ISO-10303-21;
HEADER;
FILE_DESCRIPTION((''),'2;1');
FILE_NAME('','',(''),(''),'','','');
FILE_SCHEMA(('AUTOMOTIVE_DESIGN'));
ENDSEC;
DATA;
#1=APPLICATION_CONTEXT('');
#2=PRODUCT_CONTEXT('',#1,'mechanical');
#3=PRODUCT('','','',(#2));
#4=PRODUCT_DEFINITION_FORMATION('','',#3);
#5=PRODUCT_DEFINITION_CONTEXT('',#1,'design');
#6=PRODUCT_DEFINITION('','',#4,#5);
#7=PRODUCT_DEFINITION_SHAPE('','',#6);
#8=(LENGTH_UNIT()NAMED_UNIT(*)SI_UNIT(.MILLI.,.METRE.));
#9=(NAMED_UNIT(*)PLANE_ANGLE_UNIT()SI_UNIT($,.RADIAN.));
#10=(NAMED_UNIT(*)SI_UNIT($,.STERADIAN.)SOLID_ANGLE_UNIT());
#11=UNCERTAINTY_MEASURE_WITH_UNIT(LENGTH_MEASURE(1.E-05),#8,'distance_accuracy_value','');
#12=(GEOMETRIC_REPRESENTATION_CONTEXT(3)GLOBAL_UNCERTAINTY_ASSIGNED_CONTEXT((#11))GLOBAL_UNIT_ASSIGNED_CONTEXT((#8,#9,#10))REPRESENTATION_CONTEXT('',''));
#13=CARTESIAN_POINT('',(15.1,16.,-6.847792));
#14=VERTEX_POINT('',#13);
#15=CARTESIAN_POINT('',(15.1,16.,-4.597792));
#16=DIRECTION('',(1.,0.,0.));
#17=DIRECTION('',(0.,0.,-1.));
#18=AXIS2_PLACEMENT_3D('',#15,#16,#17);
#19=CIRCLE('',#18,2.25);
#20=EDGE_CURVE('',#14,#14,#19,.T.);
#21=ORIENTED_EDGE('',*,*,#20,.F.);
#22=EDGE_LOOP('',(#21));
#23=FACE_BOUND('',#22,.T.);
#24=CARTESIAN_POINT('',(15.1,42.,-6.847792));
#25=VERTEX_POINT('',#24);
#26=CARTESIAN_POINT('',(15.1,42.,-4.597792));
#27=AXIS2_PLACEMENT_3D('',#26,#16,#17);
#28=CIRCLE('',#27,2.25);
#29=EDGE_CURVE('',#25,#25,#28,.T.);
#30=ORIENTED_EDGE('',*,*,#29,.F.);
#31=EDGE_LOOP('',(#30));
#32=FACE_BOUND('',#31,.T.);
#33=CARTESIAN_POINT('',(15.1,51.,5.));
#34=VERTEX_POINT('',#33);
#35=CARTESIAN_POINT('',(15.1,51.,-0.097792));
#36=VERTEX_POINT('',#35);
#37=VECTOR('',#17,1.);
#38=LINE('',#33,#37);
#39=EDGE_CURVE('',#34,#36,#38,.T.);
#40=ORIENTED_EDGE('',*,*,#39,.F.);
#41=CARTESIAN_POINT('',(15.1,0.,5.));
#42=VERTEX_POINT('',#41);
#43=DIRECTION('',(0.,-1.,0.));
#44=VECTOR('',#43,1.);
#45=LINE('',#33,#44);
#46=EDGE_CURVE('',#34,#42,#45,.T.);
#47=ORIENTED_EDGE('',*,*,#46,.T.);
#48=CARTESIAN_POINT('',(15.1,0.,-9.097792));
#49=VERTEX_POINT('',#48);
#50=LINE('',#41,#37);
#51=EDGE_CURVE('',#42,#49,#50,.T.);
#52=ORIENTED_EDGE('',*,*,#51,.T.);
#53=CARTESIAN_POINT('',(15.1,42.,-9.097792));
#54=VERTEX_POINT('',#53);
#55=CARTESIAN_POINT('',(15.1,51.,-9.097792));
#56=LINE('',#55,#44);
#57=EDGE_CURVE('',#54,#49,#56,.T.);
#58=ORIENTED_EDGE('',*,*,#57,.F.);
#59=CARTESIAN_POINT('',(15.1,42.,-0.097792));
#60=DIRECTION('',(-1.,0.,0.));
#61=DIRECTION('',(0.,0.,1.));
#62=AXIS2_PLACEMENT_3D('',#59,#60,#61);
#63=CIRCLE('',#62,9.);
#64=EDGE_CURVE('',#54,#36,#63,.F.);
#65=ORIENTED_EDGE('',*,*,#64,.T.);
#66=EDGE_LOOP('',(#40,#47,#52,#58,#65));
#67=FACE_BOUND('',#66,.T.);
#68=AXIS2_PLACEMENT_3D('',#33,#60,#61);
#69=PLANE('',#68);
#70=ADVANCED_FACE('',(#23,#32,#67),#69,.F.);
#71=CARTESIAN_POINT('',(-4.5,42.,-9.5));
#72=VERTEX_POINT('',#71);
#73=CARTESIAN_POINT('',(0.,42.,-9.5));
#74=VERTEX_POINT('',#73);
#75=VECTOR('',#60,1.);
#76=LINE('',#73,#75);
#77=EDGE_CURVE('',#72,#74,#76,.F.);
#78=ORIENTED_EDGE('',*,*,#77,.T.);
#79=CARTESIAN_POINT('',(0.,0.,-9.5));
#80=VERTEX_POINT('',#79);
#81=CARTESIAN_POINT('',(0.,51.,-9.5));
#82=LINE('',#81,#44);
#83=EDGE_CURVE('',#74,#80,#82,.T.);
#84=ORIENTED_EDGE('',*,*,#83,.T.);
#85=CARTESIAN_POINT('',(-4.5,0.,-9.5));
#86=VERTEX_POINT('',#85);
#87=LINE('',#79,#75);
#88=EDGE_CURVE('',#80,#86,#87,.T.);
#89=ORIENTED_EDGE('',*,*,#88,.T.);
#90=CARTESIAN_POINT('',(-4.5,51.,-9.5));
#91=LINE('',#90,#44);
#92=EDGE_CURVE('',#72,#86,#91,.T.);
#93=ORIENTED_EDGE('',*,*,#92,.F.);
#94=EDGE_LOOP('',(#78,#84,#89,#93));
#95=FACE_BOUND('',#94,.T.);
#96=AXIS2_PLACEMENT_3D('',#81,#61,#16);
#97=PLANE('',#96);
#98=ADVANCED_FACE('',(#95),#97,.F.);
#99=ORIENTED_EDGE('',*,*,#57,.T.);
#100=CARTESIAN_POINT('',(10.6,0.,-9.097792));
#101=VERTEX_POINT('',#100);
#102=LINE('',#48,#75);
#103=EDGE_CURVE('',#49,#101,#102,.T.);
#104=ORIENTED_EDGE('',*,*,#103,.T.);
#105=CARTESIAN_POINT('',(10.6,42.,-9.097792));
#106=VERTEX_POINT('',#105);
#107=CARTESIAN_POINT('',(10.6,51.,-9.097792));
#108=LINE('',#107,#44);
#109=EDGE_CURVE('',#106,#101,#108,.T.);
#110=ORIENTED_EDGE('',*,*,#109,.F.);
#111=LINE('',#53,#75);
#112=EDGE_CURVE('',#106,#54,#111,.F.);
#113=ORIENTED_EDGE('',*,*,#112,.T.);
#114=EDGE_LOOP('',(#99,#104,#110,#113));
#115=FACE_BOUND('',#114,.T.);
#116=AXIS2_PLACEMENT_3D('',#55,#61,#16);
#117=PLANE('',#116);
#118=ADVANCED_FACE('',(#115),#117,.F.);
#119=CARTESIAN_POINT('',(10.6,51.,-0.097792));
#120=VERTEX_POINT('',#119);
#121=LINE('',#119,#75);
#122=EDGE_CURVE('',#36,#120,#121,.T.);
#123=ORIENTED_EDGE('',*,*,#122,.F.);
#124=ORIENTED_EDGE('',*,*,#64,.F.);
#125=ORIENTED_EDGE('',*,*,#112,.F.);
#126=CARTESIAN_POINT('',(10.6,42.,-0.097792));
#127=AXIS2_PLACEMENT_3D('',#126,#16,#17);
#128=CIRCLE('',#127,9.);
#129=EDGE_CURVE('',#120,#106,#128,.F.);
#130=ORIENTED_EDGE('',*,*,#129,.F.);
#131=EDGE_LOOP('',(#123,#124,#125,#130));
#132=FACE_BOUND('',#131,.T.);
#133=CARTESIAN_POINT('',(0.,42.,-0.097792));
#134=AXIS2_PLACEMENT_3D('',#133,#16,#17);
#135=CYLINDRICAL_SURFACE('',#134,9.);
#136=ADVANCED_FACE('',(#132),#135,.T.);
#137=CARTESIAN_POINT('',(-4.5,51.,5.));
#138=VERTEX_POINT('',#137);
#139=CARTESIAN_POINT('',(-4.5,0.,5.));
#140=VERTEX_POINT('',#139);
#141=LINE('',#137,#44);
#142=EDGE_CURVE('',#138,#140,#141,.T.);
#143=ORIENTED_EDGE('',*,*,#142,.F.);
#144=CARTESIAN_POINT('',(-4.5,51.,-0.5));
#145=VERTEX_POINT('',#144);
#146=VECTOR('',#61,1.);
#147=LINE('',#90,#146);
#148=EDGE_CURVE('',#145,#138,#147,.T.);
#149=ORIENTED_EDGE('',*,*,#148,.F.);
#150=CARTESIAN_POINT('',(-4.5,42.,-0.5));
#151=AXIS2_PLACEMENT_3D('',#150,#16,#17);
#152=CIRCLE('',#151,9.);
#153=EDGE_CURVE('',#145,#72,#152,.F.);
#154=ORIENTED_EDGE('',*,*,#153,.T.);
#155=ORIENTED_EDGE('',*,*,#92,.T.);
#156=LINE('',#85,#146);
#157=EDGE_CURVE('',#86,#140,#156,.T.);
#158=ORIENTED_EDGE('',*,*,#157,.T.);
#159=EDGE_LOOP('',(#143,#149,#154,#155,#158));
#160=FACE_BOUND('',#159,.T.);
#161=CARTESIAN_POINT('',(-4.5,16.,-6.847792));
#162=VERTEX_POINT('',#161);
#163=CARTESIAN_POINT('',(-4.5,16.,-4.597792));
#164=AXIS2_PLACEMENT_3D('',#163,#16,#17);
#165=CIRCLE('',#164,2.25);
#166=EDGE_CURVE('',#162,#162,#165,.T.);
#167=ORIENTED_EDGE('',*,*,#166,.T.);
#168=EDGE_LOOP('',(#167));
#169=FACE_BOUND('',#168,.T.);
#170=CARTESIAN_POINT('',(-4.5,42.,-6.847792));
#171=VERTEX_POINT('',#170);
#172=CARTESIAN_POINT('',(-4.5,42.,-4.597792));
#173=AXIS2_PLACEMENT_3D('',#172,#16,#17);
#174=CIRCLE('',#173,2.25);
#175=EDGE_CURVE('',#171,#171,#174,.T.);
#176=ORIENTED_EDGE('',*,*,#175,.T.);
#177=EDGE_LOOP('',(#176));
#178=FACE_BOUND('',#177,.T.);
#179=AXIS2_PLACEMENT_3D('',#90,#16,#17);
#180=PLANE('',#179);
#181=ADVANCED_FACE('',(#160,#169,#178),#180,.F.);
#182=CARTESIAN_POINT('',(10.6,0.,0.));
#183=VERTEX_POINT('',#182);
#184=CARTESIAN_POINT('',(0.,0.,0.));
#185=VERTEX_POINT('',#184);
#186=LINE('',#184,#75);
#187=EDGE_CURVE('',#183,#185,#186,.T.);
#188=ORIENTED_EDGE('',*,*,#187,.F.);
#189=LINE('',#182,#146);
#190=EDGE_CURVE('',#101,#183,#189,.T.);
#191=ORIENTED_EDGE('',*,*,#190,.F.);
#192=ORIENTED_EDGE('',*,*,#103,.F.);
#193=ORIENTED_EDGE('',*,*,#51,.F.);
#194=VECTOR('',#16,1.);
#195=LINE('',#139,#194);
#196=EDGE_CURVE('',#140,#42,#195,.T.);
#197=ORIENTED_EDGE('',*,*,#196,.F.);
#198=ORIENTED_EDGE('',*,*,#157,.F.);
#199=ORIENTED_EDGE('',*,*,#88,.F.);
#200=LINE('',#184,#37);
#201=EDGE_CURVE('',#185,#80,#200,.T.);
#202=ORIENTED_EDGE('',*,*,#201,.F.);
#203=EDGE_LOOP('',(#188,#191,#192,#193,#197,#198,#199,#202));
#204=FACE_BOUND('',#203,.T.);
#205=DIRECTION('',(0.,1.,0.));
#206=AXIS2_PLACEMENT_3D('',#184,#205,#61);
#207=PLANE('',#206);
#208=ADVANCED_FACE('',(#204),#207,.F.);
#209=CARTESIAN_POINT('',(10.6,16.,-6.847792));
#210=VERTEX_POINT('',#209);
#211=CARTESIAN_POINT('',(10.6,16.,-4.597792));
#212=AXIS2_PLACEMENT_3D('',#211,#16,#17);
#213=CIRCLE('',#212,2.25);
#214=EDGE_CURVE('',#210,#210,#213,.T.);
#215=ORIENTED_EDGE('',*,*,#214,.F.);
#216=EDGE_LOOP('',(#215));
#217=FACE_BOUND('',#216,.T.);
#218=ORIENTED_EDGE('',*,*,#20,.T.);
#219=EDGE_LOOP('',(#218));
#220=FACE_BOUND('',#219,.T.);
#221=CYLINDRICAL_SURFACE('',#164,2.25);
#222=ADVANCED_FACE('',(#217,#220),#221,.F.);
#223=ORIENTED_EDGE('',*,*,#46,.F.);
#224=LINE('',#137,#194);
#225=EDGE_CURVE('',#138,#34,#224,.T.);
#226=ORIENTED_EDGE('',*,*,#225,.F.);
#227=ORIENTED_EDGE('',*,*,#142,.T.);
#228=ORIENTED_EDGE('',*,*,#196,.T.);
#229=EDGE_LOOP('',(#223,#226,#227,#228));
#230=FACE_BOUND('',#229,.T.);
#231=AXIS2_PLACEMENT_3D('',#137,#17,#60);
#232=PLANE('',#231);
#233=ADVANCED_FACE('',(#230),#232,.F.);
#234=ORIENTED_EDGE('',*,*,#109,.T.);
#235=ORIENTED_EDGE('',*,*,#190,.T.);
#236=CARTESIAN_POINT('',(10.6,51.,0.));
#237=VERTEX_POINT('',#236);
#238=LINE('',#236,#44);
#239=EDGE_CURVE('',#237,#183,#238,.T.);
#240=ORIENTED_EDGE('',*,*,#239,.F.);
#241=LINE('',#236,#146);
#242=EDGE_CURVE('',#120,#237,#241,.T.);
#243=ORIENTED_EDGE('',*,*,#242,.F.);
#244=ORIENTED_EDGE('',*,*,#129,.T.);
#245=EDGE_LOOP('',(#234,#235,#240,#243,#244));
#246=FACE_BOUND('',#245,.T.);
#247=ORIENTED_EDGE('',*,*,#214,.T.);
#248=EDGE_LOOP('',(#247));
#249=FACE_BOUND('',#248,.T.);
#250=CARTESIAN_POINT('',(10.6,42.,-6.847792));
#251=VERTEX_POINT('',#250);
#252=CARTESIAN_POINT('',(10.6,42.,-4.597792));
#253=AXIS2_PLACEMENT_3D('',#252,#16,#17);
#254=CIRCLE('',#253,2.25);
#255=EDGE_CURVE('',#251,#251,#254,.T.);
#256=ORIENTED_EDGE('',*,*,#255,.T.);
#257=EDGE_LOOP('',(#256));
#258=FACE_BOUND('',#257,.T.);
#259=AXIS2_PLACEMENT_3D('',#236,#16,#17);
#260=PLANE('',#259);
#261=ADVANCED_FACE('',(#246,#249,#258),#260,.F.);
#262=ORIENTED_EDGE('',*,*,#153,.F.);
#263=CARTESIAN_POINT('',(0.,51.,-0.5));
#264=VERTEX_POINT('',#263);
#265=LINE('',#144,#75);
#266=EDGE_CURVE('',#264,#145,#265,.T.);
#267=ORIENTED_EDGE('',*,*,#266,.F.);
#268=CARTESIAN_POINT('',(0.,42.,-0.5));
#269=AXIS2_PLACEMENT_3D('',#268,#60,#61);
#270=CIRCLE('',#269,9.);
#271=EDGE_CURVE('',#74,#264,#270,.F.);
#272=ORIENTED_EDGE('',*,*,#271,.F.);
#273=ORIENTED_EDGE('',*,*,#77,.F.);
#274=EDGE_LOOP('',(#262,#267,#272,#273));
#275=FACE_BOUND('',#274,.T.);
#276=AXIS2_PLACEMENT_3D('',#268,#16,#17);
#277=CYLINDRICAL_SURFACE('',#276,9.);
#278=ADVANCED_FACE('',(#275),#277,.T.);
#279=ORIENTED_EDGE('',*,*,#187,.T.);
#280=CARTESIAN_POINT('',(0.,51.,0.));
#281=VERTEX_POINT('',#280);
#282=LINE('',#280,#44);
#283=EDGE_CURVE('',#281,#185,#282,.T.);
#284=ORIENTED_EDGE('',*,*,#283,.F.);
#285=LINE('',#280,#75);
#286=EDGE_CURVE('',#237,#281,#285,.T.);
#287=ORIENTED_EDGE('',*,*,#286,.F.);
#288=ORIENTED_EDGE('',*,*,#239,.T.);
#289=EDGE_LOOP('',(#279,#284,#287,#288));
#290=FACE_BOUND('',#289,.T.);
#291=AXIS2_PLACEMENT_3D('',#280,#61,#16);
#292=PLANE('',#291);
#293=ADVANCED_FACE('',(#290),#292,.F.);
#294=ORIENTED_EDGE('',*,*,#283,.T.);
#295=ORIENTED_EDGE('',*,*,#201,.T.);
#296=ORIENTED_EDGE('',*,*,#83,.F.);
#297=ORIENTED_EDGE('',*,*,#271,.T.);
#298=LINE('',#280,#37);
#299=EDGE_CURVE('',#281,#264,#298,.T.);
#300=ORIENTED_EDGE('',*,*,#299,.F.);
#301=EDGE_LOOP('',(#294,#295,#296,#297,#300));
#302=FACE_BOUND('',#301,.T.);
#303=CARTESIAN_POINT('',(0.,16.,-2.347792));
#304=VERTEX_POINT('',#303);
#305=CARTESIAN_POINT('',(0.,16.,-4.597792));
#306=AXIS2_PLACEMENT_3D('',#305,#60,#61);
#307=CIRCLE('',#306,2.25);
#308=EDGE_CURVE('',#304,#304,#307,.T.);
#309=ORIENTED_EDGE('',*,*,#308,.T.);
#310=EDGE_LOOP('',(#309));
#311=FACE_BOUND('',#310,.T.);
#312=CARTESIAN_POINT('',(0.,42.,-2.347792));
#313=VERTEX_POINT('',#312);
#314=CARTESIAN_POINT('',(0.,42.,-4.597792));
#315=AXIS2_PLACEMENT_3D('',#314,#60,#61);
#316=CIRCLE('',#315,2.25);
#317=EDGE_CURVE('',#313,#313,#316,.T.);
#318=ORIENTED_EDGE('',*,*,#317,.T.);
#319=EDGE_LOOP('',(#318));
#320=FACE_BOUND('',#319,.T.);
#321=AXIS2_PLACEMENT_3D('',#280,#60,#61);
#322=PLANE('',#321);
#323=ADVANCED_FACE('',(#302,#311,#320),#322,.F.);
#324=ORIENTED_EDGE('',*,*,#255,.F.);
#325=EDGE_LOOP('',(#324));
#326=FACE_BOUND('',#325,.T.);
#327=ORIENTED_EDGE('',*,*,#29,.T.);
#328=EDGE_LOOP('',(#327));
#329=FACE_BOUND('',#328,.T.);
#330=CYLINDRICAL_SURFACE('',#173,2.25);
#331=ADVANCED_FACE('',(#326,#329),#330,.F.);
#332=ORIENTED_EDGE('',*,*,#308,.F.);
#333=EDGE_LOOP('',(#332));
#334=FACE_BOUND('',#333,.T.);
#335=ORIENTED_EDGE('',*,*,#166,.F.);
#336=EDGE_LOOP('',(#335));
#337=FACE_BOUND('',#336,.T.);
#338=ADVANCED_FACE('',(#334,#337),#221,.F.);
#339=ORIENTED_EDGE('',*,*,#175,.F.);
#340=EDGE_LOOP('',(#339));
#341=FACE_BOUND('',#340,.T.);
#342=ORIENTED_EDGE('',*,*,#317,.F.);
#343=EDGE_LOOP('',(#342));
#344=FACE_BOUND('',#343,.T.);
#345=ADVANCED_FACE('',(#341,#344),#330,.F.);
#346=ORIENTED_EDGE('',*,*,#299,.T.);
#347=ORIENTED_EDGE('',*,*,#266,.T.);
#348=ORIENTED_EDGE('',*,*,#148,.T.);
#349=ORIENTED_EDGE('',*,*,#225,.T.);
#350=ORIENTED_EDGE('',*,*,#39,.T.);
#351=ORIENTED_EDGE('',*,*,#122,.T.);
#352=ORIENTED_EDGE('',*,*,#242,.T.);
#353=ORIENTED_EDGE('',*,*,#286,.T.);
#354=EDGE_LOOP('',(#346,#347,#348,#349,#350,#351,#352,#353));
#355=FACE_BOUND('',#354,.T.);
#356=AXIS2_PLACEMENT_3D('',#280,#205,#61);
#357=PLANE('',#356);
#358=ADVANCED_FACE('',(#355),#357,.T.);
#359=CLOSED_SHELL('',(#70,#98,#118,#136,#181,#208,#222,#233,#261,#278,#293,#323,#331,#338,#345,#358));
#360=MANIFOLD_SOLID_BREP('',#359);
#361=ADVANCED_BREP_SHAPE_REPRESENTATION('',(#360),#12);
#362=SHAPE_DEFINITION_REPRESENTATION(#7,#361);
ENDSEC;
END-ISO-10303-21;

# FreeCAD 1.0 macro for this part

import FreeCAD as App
import Part
import Sketcher
from FreeCAD import Vector
Q = App.Units.Quantity


def edges_at(feature, points):
    """Names of the edges that pass closest to the given points."""
    edges = feature.Shape.Edges
    near = lambda p: min(range(len(edges)), key=lambda i: edges[i].distToShape(Part.Vertex(*p))[0])
    return sorted({f"Edge{near(p) + 1}" for p in points})

doc = App.newDocument("Part")
body = doc.addObject("PartDesign::Body", "Body")

# Sketch on XZ plane
sketch1 = body.newObject("Sketcher::SketchObject", "Sketch")
sketch1.AttachmentSupport = (doc.getObject("XZ_Plane"), [""])
sketch1.MapMode = "FlatFace"
sketch1.addGeometry(Part.LineSegment(Vector(10.6, 0, 0), Vector(0, 0, 0)), False)
sketch1.addGeometry(Part.LineSegment(Vector(0, 0, 0), Vector(0, -9.5, 0)), False)
sketch1.addGeometry(Part.LineSegment(Vector(0, -9.5, 0), Vector(-4.5, -9.5, 0)), False)
sketch1.addGeometry(Part.LineSegment(Vector(-4.5, -9.5, 0), Vector(-4.5, 5, 0)), False)
sketch1.addGeometry(Part.LineSegment(Vector(-4.5, 5, 0), Vector(15.1, 5, 0)), False)
sketch1.addGeometry(Part.LineSegment(Vector(15.1, 5, 0), Vector(15.1, -9.097792, 0)), False)
sketch1.addGeometry(Part.LineSegment(Vector(15.1, -9.097792, 0), Vector(10.6, -9.097792, 0)), False)
sketch1.addGeometry(Part.LineSegment(Vector(10.6, -9.097792, 0), Vector(10.6, 0, 0)), False)
sketch1.addConstraint(Sketcher.Constraint("Coincident", 0, 2, 1, 1))
sketch1.addConstraint(Sketcher.Constraint("Coincident", 1, 2, 2, 1))
sketch1.addConstraint(Sketcher.Constraint("Coincident", 2, 2, 3, 1))
sketch1.addConstraint(Sketcher.Constraint("Coincident", 3, 2, 4, 1))
sketch1.addConstraint(Sketcher.Constraint("Coincident", 4, 2, 5, 1))
sketch1.addConstraint(Sketcher.Constraint("Coincident", 5, 2, 6, 1))
sketch1.addConstraint(Sketcher.Constraint("Coincident", 6, 2, 7, 1))
sketch1.addConstraint(Sketcher.Constraint("Coincident", 7, 2, 0, 1))
sketch1.addConstraint(Sketcher.Constraint("Horizontal", 0))
sketch1.addConstraint(Sketcher.Constraint("Vertical", 1))
sketch1.addConstraint(Sketcher.Constraint("Horizontal", 2))
sketch1.addConstraint(Sketcher.Constraint("Vertical", 3))
sketch1.addConstraint(Sketcher.Constraint("Horizontal", 4))
sketch1.addConstraint(Sketcher.Constraint("Vertical", 5))
sketch1.addConstraint(Sketcher.Constraint("Horizontal", 6))
sketch1.addConstraint(Sketcher.Constraint("Vertical", 7))
sketch1.addConstraint(Sketcher.Constraint("Coincident", 0, 2, -1, 1))
sketch1.addConstraint(Sketcher.Constraint("Equal", 2, 6))
sketch1.addConstraint(Sketcher.Constraint("DistanceX", 0, 2, 0, 1, Q("10.6 mm")))
sketch1.addConstraint(Sketcher.Constraint("DistanceX", 2, 2, 2, 1, Q("4.5 mm")))
sketch1.addConstraint(Sketcher.Constraint("DistanceY", 1, 2, 1, 1, Q("9.5 mm")))
sketch1.addConstraint(Sketcher.Constraint("DistanceY", 3, 1, 3, 2, Q("14.5 mm")))
sketch1.addConstraint(Sketcher.Constraint("DistanceY", 5, 2, 5, 1, Q("14.097792 mm")))
pad1 = body.newObject("PartDesign::Pad", "Pad")
pad1.Profile = sketch1
pad1.Length = 51
pad1.Reversed = True

# Sketch on YZ plane
sketch2 = body.newObject("Sketcher::SketchObject", "Sketch001")
sketch2.AttachmentSupport = (doc.getObject("YZ_Plane"), [""])
sketch2.MapMode = "FlatFace"
sketch2.AttachmentOffset = App.Placement(Vector(0, 0, 15.1), App.Rotation())
sketch2.addGeometry(Part.Circle(Vector(42, -4.597792, 0), Vector(0, 0, 1), 2.25), False)
sketch2.addGeometry(Part.Circle(Vector(16, -4.597792, 0), Vector(0, 0, 1), 2.25), False)
sketch2.addConstraint(Sketcher.Constraint("Equal", 0, 1))
sketch2.addConstraint(Sketcher.Constraint("Horizontal", 0, 3, 1, 3))
sketch2.addConstraint(Sketcher.Constraint("Diameter", 0, Q("4.5 mm")))
sketch2.addConstraint(Sketcher.Constraint("DistanceX", -1, 1, 0, 3, Q("42 mm")))
sketch2.addConstraint(Sketcher.Constraint("DistanceX", -1, 1, 1, 3, Q("16 mm")))
sketch2.addConstraint(Sketcher.Constraint("DistanceY", 0, 3, -1, 1, Q("4.597792 mm")))
pocket1 = body.newObject("PartDesign::Pocket", "Pocket")
pocket1.Profile = sketch2
pocket1.Type = "ThroughAll"
doc.recompute()

fillet = body.newObject("PartDesign::Fillet", "Fillet")
fillet.Base = (pocket1, edges_at(pocket1, [(12.85, 51, -9.098), (-2.25, 51, -9.5)]))
fillet.Radius = 9

doc.recompute()
